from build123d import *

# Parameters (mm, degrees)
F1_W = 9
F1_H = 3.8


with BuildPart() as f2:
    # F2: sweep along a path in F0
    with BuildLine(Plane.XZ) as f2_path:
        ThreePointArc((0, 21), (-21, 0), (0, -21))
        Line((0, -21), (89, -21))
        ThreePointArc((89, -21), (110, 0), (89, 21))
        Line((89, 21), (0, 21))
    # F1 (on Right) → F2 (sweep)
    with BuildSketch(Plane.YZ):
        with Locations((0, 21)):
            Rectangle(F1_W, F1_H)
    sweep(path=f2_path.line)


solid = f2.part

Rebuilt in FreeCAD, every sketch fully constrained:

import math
import FreeCAD as App
import Part
import Sketcher
Q = App.Units.Quantity


def add_polygon(sketch, points):
    """Adds a closed chain of lines whose ends are joined by coincident constraints."""
    first, n = sketch.GeometryCount, len(points)
    for a, b in zip(points, points[1:] + points[:1]):
        sketch.addGeometry(Part.LineSegment(App.Vector(*a, 0), App.Vector(*b, 0)), False)
    for i in range(n):
        sketch.addConstraint(Sketcher.Constraint("Coincident", first + i, 2, first + (i + 1) % n, 1))

doc = App.newDocument("Part")
params = doc.addObject("Spreadsheet::Sheet", "Params")
for row, (alias, value) in enumerate([
    ("sketch1_width", "9 mm"),
    ("sketch1_height", "3.8 mm"),
    ("sketch2_radius", "21 mm"),
    ("sketch2_width", "89 mm"),
], start=1):
    params.set(f"A{row}", alias)
    params.set(f"B{row}", "=" + value)
    params.setAlias(f"B{row}", alias)

body = doc.addObject("PartDesign::Body", "Body")

# Sketch on YZ plane
sketch1 = body.newObject("Sketcher::SketchObject", "Sketch")
sketch1.AttachmentSupport = (doc.getObject("YZ_Plane"), [""])
sketch1.MapMode = "FlatFace"
add_polygon(sketch1, [(-4.5, 22.9), (-4.5, 19.1), (4.5, 19.1), (4.5, 22.9)])  # lines 0-3
sketch1.addConstraint(Sketcher.Constraint("Vertical", 0))
sketch1.addConstraint(Sketcher.Constraint("Horizontal", 1))
sketch1.addConstraint(Sketcher.Constraint("Vertical", 2))
sketch1.addConstraint(Sketcher.Constraint("Horizontal", 3))
sketch1.addConstraint(Sketcher.Constraint("DistanceX", 1, 1, 1, 2, Q("9 mm")))
sketch1.addConstraint(Sketcher.Constraint("DistanceY", 0, 2, 0, 1, Q("3.8 mm")))
sketch1.addConstraint(Sketcher.Constraint("DistanceX", 0, 2, -1, 1, Q("4.5 mm")))
sketch1.addConstraint(Sketcher.Constraint("DistanceY", -1, 1, 0, 2, Q("19.1 mm")))
sketch1.setExpression("Constraints[8]", "Params.sketch1_width")
sketch1.setExpression("Constraints[9]", "Params.sketch1_height")

# Sketch on XZ plane
sketch2 = body.newObject("Sketcher::SketchObject", "Sketch001")
sketch2.AttachmentSupport = (doc.getObject("XZ_Plane"), [""])
sketch2.MapMode = "FlatFace"
sketch2.addGeometry(Part.ArcOfCircle(Part.Circle(App.Vector(0, 0, 0), App.Vector(0, 0, 1), 21), math.radians(90), math.radians(270)), False)
sketch2.addGeometry(Part.LineSegment(App.Vector(0, -21, 0), App.Vector(89, -21, 0)), False)
sketch2.addGeometry(Part.ArcOfCircle(Part.Circle(App.Vector(89, 0, 0), App.Vector(0, 0, 1), 21), math.radians(-90), math.radians(90)), False)
sketch2.addGeometry(Part.LineSegment(App.Vector(89, 21, 0), App.Vector(0, 21, 0)), False)
sketch2.addConstraint(Sketcher.Constraint("Tangent", 0, 2, 1, 1))
sketch2.addConstraint(Sketcher.Constraint("Tangent", 1, 2, 2, 1))
sketch2.addConstraint(Sketcher.Constraint("Tangent", 2, 2, 3, 1))
sketch2.addConstraint(Sketcher.Constraint("Tangent", 3, 2, 0, 1))
sketch2.addConstraint(Sketcher.Constraint("Horizontal", 1))
sketch2.addConstraint(Sketcher.Constraint("Horizontal", 3))
sketch2.addConstraint(Sketcher.Constraint("Coincident", 0, 3, -1, 1))
sketch2.addConstraint(Sketcher.Constraint("Radius", 0, Q("21 mm")))
sketch2.addConstraint(Sketcher.Constraint("DistanceX", 1, 1, 1, 2, Q("89 mm")))
sketch2.setExpression("Constraints[7]", "Params.sketch2_radius")
sketch2.setExpression("Constraints[8]", "Params.sketch2_width")
doc.recompute()

additivepipe = body.newObject("PartDesign::AdditivePipe", "AdditivePipe")
additivepipe.Profile = sketch1
additivepipe.Spine = (sketch2, ["Edge1", "Edge2", "Edge3", "Edge4"])

doc.recompute()
